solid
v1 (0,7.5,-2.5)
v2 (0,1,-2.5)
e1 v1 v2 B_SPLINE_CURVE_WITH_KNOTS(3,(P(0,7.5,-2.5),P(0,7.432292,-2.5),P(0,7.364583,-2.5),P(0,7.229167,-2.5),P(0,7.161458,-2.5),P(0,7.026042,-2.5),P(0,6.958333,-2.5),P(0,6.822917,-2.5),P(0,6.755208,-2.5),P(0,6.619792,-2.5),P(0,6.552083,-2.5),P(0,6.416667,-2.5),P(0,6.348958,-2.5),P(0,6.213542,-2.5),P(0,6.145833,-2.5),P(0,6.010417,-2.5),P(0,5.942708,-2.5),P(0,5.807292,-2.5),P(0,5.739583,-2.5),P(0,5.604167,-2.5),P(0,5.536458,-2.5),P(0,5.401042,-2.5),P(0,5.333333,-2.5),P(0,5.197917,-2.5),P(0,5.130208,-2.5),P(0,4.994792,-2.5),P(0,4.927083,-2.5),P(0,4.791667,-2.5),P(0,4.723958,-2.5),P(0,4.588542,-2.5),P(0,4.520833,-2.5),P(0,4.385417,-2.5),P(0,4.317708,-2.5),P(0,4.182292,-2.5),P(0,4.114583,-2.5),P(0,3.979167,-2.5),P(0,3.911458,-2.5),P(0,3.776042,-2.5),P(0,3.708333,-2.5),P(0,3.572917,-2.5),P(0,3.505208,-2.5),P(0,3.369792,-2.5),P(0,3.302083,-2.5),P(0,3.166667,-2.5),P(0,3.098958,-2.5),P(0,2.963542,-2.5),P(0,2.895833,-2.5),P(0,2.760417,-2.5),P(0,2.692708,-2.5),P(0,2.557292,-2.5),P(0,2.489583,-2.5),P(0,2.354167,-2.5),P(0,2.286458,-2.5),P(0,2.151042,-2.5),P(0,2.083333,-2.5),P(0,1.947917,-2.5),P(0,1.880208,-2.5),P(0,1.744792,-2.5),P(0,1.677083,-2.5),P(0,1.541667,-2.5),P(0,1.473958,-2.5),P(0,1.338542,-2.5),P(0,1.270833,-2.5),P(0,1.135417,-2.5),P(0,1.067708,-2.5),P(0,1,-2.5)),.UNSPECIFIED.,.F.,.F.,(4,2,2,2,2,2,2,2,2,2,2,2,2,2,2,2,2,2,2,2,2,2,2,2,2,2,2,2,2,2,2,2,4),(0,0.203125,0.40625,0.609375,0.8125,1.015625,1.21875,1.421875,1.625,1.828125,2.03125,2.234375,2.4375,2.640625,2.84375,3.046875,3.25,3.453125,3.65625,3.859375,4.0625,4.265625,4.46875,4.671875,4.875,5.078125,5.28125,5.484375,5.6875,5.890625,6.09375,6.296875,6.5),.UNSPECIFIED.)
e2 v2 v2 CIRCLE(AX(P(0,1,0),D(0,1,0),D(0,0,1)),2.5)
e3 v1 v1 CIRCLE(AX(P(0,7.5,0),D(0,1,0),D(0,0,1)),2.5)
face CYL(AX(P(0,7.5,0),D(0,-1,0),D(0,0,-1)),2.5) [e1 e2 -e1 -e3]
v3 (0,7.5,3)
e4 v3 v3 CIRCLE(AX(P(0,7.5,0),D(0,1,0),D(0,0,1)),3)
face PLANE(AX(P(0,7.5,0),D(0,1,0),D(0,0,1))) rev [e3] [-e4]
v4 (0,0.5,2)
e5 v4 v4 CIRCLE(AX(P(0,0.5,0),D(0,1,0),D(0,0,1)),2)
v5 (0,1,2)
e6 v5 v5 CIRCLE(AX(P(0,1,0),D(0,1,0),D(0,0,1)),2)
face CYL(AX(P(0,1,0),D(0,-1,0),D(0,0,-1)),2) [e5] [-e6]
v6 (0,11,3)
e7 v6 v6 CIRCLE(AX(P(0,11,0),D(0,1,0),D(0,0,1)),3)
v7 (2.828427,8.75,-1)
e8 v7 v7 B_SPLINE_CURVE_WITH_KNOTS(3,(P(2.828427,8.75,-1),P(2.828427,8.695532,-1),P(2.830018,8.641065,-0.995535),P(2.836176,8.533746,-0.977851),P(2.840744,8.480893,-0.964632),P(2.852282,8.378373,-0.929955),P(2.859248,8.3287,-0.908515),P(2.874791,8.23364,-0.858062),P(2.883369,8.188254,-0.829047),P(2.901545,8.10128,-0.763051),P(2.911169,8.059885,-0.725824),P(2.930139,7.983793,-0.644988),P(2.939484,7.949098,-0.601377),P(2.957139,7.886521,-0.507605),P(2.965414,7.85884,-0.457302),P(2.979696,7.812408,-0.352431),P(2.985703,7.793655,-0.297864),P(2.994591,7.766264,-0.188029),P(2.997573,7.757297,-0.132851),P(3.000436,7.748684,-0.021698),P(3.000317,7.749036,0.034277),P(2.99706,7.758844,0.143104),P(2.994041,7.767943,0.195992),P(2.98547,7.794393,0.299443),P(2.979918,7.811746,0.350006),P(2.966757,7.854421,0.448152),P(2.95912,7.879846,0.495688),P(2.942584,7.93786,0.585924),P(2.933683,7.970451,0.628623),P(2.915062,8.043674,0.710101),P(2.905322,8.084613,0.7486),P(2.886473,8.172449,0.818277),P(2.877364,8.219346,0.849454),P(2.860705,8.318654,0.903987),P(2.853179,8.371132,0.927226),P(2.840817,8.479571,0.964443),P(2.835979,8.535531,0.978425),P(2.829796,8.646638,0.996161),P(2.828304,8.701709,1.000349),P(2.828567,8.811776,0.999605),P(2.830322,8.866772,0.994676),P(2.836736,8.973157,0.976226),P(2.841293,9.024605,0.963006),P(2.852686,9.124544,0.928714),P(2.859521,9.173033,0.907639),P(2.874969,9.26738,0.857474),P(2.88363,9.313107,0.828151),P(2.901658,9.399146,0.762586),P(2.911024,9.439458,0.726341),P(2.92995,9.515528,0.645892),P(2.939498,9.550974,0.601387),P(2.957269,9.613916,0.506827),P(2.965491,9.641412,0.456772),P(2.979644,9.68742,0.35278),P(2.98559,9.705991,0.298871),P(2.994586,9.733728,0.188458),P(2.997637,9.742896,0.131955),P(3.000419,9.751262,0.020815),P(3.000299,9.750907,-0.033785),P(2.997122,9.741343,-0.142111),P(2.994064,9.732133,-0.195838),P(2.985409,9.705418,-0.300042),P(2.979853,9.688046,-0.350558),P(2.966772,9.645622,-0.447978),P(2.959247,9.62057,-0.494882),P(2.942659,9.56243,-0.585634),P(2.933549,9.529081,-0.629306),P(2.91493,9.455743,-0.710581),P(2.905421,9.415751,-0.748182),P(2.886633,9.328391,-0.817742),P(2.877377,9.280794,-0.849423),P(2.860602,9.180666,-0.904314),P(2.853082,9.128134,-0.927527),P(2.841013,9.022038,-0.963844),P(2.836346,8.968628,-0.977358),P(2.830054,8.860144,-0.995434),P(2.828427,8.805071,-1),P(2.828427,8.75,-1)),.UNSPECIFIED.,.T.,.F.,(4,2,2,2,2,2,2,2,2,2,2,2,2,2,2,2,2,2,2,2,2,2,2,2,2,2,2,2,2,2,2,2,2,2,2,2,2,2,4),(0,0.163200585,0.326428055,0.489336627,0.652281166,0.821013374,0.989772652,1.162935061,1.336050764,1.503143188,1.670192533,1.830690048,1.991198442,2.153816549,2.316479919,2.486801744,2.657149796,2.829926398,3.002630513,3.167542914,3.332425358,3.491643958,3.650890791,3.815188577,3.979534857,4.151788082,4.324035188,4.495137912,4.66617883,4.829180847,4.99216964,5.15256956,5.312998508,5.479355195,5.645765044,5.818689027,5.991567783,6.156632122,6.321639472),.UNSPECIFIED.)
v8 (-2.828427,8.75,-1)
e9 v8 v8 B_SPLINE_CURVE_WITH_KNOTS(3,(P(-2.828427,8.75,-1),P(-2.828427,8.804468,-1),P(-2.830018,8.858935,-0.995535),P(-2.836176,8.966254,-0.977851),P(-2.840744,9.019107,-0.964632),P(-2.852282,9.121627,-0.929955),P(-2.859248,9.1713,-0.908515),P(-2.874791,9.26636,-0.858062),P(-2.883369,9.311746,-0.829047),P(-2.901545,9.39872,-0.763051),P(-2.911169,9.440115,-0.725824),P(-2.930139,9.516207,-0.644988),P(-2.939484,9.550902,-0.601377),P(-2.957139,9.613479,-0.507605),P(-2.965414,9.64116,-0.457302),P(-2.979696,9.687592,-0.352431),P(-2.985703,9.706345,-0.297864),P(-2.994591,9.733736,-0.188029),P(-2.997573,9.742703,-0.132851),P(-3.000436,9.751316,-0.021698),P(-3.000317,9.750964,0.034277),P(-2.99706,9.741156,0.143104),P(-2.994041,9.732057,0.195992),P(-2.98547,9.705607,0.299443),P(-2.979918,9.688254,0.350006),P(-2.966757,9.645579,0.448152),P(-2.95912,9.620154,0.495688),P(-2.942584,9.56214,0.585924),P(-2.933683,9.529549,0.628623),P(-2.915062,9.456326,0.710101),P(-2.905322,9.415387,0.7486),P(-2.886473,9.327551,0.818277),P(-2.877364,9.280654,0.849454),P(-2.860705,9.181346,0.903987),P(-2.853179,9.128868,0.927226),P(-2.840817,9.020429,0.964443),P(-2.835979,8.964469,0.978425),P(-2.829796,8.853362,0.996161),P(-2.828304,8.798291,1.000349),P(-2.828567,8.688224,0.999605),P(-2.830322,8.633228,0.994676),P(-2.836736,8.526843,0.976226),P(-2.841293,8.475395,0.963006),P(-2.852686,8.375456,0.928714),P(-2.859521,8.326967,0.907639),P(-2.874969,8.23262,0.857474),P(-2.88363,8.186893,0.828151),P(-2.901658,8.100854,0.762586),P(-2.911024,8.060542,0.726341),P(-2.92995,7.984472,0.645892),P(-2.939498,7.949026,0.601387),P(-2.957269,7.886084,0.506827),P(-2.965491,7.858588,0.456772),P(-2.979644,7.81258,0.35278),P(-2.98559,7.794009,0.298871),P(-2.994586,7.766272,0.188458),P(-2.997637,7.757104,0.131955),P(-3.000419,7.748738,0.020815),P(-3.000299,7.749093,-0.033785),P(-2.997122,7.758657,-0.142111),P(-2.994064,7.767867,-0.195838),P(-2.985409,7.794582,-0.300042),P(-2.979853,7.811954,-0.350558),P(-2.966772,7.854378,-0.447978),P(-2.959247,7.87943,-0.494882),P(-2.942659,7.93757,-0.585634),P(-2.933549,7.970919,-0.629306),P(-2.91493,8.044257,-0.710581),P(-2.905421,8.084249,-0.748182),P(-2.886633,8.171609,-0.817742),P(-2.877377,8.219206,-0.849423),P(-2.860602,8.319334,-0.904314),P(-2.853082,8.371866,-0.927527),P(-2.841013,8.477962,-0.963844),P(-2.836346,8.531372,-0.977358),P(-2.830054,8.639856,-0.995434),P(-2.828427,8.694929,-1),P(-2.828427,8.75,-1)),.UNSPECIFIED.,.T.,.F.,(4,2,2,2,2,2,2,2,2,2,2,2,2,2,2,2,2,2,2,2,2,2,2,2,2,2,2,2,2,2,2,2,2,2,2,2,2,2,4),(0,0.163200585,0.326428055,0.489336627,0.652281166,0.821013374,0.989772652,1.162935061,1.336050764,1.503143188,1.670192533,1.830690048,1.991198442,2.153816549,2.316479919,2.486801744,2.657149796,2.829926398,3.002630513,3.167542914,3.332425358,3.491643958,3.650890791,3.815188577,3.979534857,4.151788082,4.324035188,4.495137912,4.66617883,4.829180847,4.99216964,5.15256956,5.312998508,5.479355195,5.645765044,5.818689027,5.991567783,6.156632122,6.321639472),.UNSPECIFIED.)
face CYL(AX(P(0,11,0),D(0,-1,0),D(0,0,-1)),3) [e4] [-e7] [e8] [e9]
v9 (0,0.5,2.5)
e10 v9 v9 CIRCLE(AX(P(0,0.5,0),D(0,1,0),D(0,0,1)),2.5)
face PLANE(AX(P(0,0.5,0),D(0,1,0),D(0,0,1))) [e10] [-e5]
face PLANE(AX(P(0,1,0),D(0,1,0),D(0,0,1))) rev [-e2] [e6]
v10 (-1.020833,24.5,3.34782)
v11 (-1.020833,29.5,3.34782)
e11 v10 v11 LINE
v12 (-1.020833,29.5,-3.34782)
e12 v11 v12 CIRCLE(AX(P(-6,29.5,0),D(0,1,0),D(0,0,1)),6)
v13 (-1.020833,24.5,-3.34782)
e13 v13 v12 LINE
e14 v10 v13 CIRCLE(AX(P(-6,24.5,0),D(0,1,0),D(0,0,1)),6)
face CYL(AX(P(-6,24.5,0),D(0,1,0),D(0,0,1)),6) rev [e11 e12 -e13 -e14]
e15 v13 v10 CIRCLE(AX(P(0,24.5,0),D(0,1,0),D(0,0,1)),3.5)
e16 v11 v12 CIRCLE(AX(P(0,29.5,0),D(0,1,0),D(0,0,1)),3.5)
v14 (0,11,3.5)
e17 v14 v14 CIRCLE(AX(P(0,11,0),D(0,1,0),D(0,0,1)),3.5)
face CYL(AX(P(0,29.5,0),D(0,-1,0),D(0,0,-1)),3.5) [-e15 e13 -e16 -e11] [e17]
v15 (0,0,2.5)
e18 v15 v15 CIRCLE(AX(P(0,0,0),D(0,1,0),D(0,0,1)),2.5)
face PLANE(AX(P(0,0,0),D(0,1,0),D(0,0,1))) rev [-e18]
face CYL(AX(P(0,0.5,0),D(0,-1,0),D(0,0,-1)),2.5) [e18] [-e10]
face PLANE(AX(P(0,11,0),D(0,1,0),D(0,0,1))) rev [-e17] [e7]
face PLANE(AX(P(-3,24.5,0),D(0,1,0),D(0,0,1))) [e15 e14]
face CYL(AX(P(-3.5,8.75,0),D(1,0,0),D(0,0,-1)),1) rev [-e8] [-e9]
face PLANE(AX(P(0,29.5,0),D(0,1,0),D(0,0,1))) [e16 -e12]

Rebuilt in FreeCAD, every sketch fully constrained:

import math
import FreeCAD as App
import Part
import Sketcher

doc = App.newDocument("Part")
body = doc.addObject("PartDesign::Body", "Body")

# Sketch on XZ plane
sketch1 = body.newObject("Sketcher::SketchObject", "Sketch")
sketch1.AttachmentSupport = (doc.getObject("XZ_Plane"), [""])
sketch1.MapMode = "FlatFace"
sketch1.addGeometry(Part.Circle(App.Vector(0, 0, 0), App.Vector(0, 0, 1), 2.5), False)
sketch1.addConstraint(Sketcher.Constraint("Coincident", 0, 3, -1, 1))
sketch1.addConstraint(Sketcher.Constraint("Diameter", 0, 5.0))
pad1 = body.newObject("PartDesign::Pad", "Pad")
pad1.Profile = sketch1
pad1.Length = 0.5
pad1.Reversed = True

# Sketch on XZ plane
sketch2 = body.newObject("Sketcher::SketchObject", "Sketch001")
sketch2.AttachmentSupport = (doc.getObject("XZ_Plane"), [""])
sketch2.MapMode = "FlatFace"
sketch2.AttachmentOffset = App.Placement(App.Vector(0, 0, -0.5), App.Rotation())
sketch2.addGeometry(Part.Circle(App.Vector(0, 0, 0), App.Vector(0, 0, 1), 2), False)
sketch2.addConstraint(Sketcher.Constraint("Coincident", 0, 3, -1, 1))
sketch2.addConstraint(Sketcher.Constraint("Diameter", 0, 4.0))
pad2 = body.newObject("PartDesign::Pad", "Pad001")
pad2.Profile = sketch2
pad2.Length = 0.5
pad2.Reversed = True

# Sketch on XZ plane
sketch3 = body.newObject("Sketcher::SketchObject", "Sketch002")
sketch3.AttachmentSupport = (doc.getObject("XZ_Plane"), [""])
sketch3.MapMode = "FlatFace"
sketch3.AttachmentOffset = App.Placement(App.Vector(0, 0, -1), App.Rotation())
sketch3.addGeometry(Part.Circle(App.Vector(0, 0, 0), App.Vector(0, 0, 1), 2.5), False)
sketch3.addConstraint(Sketcher.Constraint("Coincident", 0, 3, -1, 1))
sketch3.addConstraint(Sketcher.Constraint("Diameter", 0, 5.0))
pad3 = body.newObject("PartDesign::Pad", "Pad002")
pad3.Profile = sketch3
pad3.Length = 6.5
pad3.Reversed = True

# Sketch on XZ plane
sketch4 = body.newObject("Sketcher::SketchObject", "Sketch003")
sketch4.AttachmentSupport = (doc.getObject("XZ_Plane"), [""])
sketch4.MapMode = "FlatFace"
sketch4.AttachmentOffset = App.Placement(App.Vector(0, 0, -7.5), App.Rotation())
sketch4.addGeometry(Part.Circle(App.Vector(0, 0, 0), App.Vector(0, 0, 1), 3), False)
sketch4.addConstraint(Sketcher.Constraint("Coincident", 0, 3, -1, 1))
sketch4.addConstraint(Sketcher.Constraint("Diameter", 0, 6.0))
pad4 = body.newObject("PartDesign::Pad", "Pad003")
pad4.Profile = sketch4
pad4.Length = 3.5
pad4.Reversed = True

# Sketch on XZ plane
sketch5 = body.newObject("Sketcher::SketchObject", "Sketch004")
sketch5.AttachmentSupport = (doc.getObject("XZ_Plane"), [""])
sketch5.MapMode = "FlatFace"
sketch5.AttachmentOffset = App.Placement(App.Vector(0, 0, -11), App.Rotation())
sketch5.addGeometry(Part.Circle(App.Vector(0, 0, 0), App.Vector(0, 0, 1), 3.5), False)
sketch5.addConstraint(Sketcher.Constraint("Coincident", 0, 3, -1, 1))
sketch5.addConstraint(Sketcher.Constraint("Diameter", 0, 7.0))
pad5 = body.newObject("PartDesign::Pad", "Pad004")
pad5.Profile = sketch5
pad5.Length = 18.5
pad5.Reversed = True

# Sketch on XZ plane
sketch6 = body.newObject("Sketcher::SketchObject", "Sketch005")
sketch6.AttachmentSupport = (doc.getObject("XZ_Plane"), [""])
sketch6.MapMode = "FlatFace"
sketch6.AttachmentOffset = App.Placement(App.Vector(0, 0, -24.5), App.Rotation())
sketch6.addGeometry(Part.ArcOfCircle(Part.Circle(App.Vector(-6, 0, 0), App.Vector(0, 0, 1), 6), math.radians(-34), math.radians(34)), False)
sketch6.addGeometry(Part.ArcOfCircle(Part.Circle(App.Vector(0, 0, 0), App.Vector(0, 0, 1), 3.5), math.radians(107), math.radians(253)), False)
sketch6.addConstraint(Sketcher.Constraint("Coincident", 0, 1, 1, 2))
sketch6.addConstraint(Sketcher.Constraint("Coincident", 1, 1, 0, 2))
sketch6.addConstraint(Sketcher.Constraint("Coincident", 1, 3, -1, 1))
sketch6.addConstraint(Sketcher.Constraint("PointOnObject", 0, 3, -1))
sketch6.addConstraint(Sketcher.Constraint("Radius", 0, 6.0))
sketch6.addConstraint(Sketcher.Constraint("Radius", 1, 3.5))
sketch6.addConstraint(Sketcher.Constraint("DistanceX", 0, 3, -1, 1, 6.0))
pocket1 = body.newObject("PartDesign::Pocket", "Pocket")
pocket1.Profile = sketch6
pocket1.Length = 5

# Sketch on YZ plane
sketch7 = body.newObject("Sketcher::SketchObject", "Sketch006")
sketch7.AttachmentSupport = (doc.getObject("YZ_Plane"), [""])
sketch7.MapMode = "FlatFace"
sketch7.addGeometry(Part.Circle(App.Vector(8.8, 0, 0), App.Vector(0, 0, 1), 1), False)
sketch7.addConstraint(Sketcher.Constraint("PointOnObject", 0, 3, -1))
sketch7.addConstraint(Sketcher.Constraint("Diameter", 0, 2.0))
sketch7.addConstraint(Sketcher.Constraint("DistanceX", -1, 1, 0, 3, 8.75))
pocket2 = body.newObject("PartDesign::Pocket", "Pocket001")
pocket2.Profile = sketch7
pocket2.Type = "ThroughAll"
pocket2.Midplane = True

doc.recompute()
